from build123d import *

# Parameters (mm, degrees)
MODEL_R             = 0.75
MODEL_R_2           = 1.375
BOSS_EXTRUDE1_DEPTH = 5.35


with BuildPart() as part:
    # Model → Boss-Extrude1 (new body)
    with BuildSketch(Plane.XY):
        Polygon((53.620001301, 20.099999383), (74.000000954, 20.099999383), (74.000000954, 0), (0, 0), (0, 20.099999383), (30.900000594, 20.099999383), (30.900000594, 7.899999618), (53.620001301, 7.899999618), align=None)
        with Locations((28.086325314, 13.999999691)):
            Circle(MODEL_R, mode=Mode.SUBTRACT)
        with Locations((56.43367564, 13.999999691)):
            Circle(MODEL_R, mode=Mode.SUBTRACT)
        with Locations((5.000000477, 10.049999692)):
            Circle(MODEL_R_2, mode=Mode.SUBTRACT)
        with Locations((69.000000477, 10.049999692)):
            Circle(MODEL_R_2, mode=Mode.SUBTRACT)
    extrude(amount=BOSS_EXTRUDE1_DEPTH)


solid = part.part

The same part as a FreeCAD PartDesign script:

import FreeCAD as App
import Part
import Sketcher

V = App.Vector
Q = App.Units.Quantity


def add_polygon(sketch, points):
    """Adds a closed chain of lines whose ends are joined by coincident constraints."""
    first, n = sketch.GeometryCount, len(points)
    for a, b in zip(points, points[1:] + points[:1]):
        sketch.addGeometry(Part.LineSegment(App.Vector(*a, 0), App.Vector(*b, 0)), False)
    for i in range(n):
        sketch.addConstraint(Sketcher.Constraint("Coincident", first + i, 2, first + (i + 1) % n, 1))

doc = App.newDocument("Part")
params = doc.addObject("Spreadsheet::Sheet", "Params")
for row, (alias, value) in enumerate([
    ("sketch1_diameter", "1.5 mm"),
    ("sketch1_diameter2", "2.75 mm"),
    ("sketch1_width", "74.000001 mm"),
    ("sketch1_width2", "30.900001 mm"),
    ("sketch1_height", "12.2 mm"),
    ("pad1_length", "5.35 mm"),
], start=1):
    params.set(f"A{row}", alias)
    params.set(f"B{row}", "=" + value)
    params.setAlias(f"B{row}", alias)

body = doc.addObject("PartDesign::Body", "Body")

# Sketch on XY plane
sketch1 = doc.addObject("Sketcher::SketchObject", "Sketch")
body.addObject(sketch1)
sketch1.AttachmentSupport = (doc.XY_Plane, [""])
sketch1.MapMode = "FlatFace"
add_polygon(sketch1, [(74, 20.1), (53.6, 20.1), (53.6, 7.9), (30.9, 7.9), (30.9, 20.1), (0, 20.1), (0, 0), (74, 0)])  # lines 0-7
sketch1.addGeometry(Part.Circle(V(69, 10, 0), V(0, 0, 1), 1.4), False)  # 8
sketch1.addGeometry(Part.Circle(V(5, 10, 0), V(0, 0, 1), 1.4), False)  # 9
sketch1.addGeometry(Part.Circle(V(56.4, 14, 0), V(0, 0, 1), 0.8), False)  # 10
sketch1.addGeometry(Part.Circle(V(28.1, 14, 0), V(0, 0, 1), 0.8), False)  # 11
sketch1.addConstraint(Sketcher.Constraint("Horizontal", 0))
sketch1.addConstraint(Sketcher.Constraint("Vertical", 1))
sketch1.addConstraint(Sketcher.Constraint("Horizontal", 2))
sketch1.addConstraint(Sketcher.Constraint("Vertical", 3))
sketch1.addConstraint(Sketcher.Constraint("Horizontal", 4))
sketch1.addConstraint(Sketcher.Constraint("Vertical", 5))
sketch1.addConstraint(Sketcher.Constraint("Horizontal", 6))
sketch1.addConstraint(Sketcher.Constraint("Vertical", 7))
sketch1.addConstraint(Sketcher.Constraint("Coincident", 5, 2, -1, 1))
sketch1.addConstraint(Sketcher.Constraint("Equal", 8, 9))
sketch1.addConstraint(Sketcher.Constraint("Equal", 10, 11))
sketch1.addConstraint(Sketcher.Constraint("Horizontal", 8, 3, 9, 3))
sketch1.addConstraint(Sketcher.Constraint("Horizontal", 10, 3, 11, 3))
sketch1.addConstraint(Sketcher.Constraint("Horizontal", 0, 2, 3, 2))
sketch1.addConstraint(Sketcher.Constraint("Diameter", 10, Q("1.5 mm")))
sketch1.addConstraint(Sketcher.Constraint("Diameter", 8, Q("2.75 mm")))
sketch1.addConstraint(Sketcher.Constraint("DistanceX", 6, 1, 6, 2, Q("74.000001 mm")))
sketch1.addConstraint(Sketcher.Constraint("DistanceX", 4, 2, 4, 1, Q("30.900001 mm")))
sketch1.addConstraint(Sketcher.Constraint("DistanceY", 1, 2, 1, 1, Q("12.2 mm")))
sketch1.addConstraint(Sketcher.Constraint("DistanceY", 5, 2, 5, 1, Q("20.099999 mm")))
sketch1.addConstraint(Sketcher.Constraint("DistanceX", -1, 1, 8, 3, Q("69 mm")))
sketch1.addConstraint(Sketcher.Constraint("DistanceX", -1, 1, 9, 3, Q("5 mm")))
sketch1.addConstraint(Sketcher.Constraint("DistanceY", -1, 1, 10, 3, Q("14 mm")))
sketch1.addConstraint(Sketcher.Constraint("DistanceX", 0, 2, 0, 1, Q("20.38 mm")))
sketch1.addConstraint(Sketcher.Constraint("DistanceY", -1, 1, 8, 3, Q("10.05 mm")))
sketch1.addConstraint(Sketcher.Constraint("DistanceX", 11, 3, 10, 3, Q("28.34735 mm")))
sketch1.addConstraint(Sketcher.Constraint("DistanceX", -1, 1, 10, 3, Q("56.433676 mm")))
sketch1.setExpression("Constraints[22]", "Params.sketch1_diameter")
sketch1.setExpression("Constraints[23]", "Params.sketch1_diameter2")
sketch1.setExpression("Constraints[24]", "Params.sketch1_width")
sketch1.setExpression("Constraints[25]", "Params.sketch1_width2")
sketch1.setExpression("Constraints[26]", "Params.sketch1_height")
pad1 = doc.addObject("PartDesign::Pad", "Pad")
body.addObject(pad1)
pad1.Profile = sketch1
pad1.setExpression("Length", "Params.pad1_length")

doc.recompute()
